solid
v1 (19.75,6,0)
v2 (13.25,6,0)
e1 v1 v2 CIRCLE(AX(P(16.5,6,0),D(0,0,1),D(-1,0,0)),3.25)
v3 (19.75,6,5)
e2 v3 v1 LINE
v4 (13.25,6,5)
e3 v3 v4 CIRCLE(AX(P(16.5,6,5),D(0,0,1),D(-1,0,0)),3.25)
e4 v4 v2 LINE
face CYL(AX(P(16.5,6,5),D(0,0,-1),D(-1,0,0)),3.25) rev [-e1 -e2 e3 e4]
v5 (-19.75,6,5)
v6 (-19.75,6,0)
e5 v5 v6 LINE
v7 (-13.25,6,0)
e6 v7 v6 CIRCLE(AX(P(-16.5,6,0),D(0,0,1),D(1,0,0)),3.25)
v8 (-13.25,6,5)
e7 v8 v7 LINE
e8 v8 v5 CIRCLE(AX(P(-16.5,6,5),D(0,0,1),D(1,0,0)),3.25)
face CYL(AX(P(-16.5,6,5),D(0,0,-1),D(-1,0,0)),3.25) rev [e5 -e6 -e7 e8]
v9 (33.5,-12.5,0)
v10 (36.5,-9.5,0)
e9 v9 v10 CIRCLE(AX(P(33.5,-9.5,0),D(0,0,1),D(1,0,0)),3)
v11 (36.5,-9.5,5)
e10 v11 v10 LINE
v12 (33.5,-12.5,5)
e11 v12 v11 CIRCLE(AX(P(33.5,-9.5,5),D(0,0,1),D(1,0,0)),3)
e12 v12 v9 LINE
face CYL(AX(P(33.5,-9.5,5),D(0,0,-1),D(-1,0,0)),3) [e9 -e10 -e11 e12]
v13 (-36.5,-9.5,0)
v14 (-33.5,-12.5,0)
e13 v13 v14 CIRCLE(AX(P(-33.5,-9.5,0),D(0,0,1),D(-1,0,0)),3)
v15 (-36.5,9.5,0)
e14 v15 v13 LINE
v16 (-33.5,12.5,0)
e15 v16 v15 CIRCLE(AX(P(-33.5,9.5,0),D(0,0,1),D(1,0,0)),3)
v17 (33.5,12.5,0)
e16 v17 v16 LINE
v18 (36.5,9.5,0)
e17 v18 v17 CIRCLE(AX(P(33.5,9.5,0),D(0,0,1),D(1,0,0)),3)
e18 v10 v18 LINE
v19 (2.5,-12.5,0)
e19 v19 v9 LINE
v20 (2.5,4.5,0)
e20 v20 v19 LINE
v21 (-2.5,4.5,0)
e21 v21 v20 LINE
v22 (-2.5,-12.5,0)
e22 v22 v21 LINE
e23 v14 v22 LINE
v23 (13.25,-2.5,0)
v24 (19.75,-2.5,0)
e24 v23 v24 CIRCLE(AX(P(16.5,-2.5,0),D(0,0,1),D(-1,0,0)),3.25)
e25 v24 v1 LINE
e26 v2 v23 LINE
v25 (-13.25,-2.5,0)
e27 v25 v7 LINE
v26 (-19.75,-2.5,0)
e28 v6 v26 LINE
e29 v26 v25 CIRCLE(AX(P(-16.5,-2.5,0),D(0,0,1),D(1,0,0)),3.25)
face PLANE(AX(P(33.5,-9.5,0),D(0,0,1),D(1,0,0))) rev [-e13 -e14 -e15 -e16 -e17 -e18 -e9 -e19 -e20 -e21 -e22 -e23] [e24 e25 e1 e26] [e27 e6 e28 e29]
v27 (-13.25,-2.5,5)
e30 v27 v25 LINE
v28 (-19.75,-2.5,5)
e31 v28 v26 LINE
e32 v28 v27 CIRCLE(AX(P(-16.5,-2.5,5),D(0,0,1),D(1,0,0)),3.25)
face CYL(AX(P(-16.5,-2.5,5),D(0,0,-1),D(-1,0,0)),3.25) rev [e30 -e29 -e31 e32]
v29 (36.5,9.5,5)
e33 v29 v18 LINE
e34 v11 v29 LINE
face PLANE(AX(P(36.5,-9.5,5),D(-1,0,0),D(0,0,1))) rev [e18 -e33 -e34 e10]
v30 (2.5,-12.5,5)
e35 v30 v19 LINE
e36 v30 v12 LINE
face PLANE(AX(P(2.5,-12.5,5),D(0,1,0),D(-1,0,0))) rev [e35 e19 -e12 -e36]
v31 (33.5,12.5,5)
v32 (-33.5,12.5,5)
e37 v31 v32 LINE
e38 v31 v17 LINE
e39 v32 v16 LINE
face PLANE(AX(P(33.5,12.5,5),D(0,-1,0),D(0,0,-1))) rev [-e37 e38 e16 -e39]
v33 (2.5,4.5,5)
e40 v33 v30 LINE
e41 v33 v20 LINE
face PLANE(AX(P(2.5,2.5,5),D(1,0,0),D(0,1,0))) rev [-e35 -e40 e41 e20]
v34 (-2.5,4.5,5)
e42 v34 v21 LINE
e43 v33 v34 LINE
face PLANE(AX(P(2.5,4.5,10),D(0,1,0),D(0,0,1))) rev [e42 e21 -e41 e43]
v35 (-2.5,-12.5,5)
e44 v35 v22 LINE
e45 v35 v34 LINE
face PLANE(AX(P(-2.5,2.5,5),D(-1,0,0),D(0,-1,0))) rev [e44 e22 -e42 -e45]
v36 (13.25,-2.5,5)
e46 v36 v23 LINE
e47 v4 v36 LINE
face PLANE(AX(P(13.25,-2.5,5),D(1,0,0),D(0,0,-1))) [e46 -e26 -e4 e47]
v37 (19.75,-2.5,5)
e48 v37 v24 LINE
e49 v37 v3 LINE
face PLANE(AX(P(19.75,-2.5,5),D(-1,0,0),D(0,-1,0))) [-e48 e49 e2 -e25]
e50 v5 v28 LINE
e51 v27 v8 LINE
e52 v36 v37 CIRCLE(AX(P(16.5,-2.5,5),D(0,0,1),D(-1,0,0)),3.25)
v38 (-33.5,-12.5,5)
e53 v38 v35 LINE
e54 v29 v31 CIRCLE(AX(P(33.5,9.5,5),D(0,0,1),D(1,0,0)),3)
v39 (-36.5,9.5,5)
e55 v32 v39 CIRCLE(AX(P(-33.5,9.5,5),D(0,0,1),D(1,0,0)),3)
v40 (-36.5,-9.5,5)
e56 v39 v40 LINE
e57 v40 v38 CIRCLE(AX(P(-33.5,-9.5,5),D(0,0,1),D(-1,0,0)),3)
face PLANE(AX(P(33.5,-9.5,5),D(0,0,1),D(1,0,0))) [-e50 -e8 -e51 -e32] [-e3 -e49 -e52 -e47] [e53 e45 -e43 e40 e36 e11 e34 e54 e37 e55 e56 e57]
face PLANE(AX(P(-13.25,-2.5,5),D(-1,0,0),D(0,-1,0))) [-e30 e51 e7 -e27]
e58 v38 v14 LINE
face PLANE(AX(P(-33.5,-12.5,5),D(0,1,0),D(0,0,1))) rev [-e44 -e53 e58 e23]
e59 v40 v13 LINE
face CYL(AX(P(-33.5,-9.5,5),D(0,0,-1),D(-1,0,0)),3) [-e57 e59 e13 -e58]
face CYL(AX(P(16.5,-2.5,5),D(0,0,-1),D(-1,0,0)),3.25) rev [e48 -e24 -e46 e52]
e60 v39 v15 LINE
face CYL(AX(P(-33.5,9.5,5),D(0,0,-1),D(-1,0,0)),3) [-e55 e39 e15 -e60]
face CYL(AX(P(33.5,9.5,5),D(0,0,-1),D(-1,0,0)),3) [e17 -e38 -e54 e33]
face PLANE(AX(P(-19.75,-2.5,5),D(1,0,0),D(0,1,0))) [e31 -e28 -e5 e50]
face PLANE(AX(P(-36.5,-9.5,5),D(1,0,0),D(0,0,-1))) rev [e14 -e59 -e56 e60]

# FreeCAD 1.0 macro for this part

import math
import FreeCAD as App
import Part
import Sketcher
Q = App.Units.Quantity


def add_polygon(sketch, points):
    """Adds a closed chain of lines whose ends are joined by coincident constraints."""
    first, n = sketch.GeometryCount, len(points)
    for a, b in zip(points, points[1:] + points[:1]):
        sketch.addGeometry(Part.LineSegment(App.Vector(*a, 0), App.Vector(*b, 0)), False)
    for i in range(n):
        sketch.addConstraint(Sketcher.Constraint("Coincident", first + i, 2, first + (i + 1) % n, 1))

doc = App.newDocument("Part")
params = doc.addObject("Spreadsheet::Sheet", "Params")
for row, (alias, value) in enumerate([
    ("sketch1_radius", "3 mm"),
    ("sketch1_width", "67 mm"),
    ("sketch1_width2", "31 mm"),
    ("sketch1_height", "19 mm"),
    ("sketch1_height2", "15 mm"),
    ("pad1_length", "5 mm"),
    ("sketch2_width", "5 mm"),
    ("sketch2_height", "2 mm"),
    ("pocket1_length", "10 mm"),
], start=1):
    params.set(f"A{row}", alias)
    params.set(f"B{row}", "=" + value)
    params.setAlias(f"B{row}", alias)

body = doc.addObject("PartDesign::Body", "Body")

# Sketch on XY plane
sketch1 = body.newObject("Sketcher::SketchObject", "Sketch")
sketch1.AttachmentSupport = (doc.getObject("XY_Plane"), [""])
sketch1.MapMode = "FlatFace"
sketch1.addGeometry([
    Part.LineSegment(App.Vector(36.5, -9.5, 0), App.Vector(36.5, 9.5, 0)),  # 0
    Part.ArcOfCircle(Part.Circle(App.Vector(33.5, 9.5, 0), App.Vector(0, 0, 1), 3), math.radians(0), math.radians(90)),  # 1
    Part.LineSegment(App.Vector(33.5, 12.5, 0), App.Vector(-33.5, 12.5, 0)),  # 2
    Part.ArcOfCircle(Part.Circle(App.Vector(-33.5, 9.5, 0), App.Vector(0, 0, 1), 3), math.radians(90), math.radians(180)),  # 3
    Part.LineSegment(App.Vector(-36.5, 9.5, 0), App.Vector(-36.5, -9.5, 0)),  # 4
    Part.ArcOfCircle(Part.Circle(App.Vector(-33.5, -9.5, 0), App.Vector(0, 0, 1), 3), math.radians(180), math.radians(270)),  # 5
    Part.LineSegment(App.Vector(-33.5, -12.5, 0), App.Vector(-2.5, -12.5, 0)),  # 6
    Part.LineSegment(App.Vector(-2.5, -12.5, 0), App.Vector(-2.5, 2.5, 0)),  # 7
    Part.LineSegment(App.Vector(-2.5, 2.5, 0), App.Vector(2.5, 2.5, 0)),  # 8
    Part.LineSegment(App.Vector(2.5, 2.5, 0), App.Vector(2.5, -12.5, 0)),  # 9
    Part.LineSegment(App.Vector(2.5, -12.5, 0), App.Vector(33.5, -12.5, 0)),  # 10
    Part.ArcOfCircle(Part.Circle(App.Vector(33.5, -9.5, 0), App.Vector(0, 0, 1), 3), math.radians(-90), math.radians(0)),  # 11
    Part.ArcOfCircle(Part.Circle(App.Vector(-16.5, -2.5, 0), App.Vector(0, 0, 1), 3.2), math.radians(180), math.radians(360)),  # 12
    Part.LineSegment(App.Vector(-19.8, -2.5, 0), App.Vector(-19.8, 6, 0)),  # 13
    Part.ArcOfCircle(Part.Circle(App.Vector(-16.5, 6, 0), App.Vector(0, 0, 1), 3.2), math.radians(0), math.radians(180)),  # 14
    Part.LineSegment(App.Vector(-13.2, 6, 0), App.Vector(-13.2, -2.5, 0)),  # 15
    Part.LineSegment(App.Vector(19.8, 6, 0), App.Vector(19.8, -2.5, 0)),  # 16
    Part.ArcOfCircle(Part.Circle(App.Vector(16.5, -2.5, 0), App.Vector(0, 0, 1), 3.2), math.radians(180), math.radians(360)),  # 17
    Part.LineSegment(App.Vector(13.2, -2.5, 0), App.Vector(13.2, 6, 0)),  # 18
    Part.ArcOfCircle(Part.Circle(App.Vector(16.5, 6, 0), App.Vector(0, 0, 1), 3.2), math.radians(0), math.radians(180)),  # 19
], False)
sketch1.addConstraint([
    Sketcher.Constraint("Tangent", 0, 2, 1, 1),
    Sketcher.Constraint("Tangent", 1, 2, 2, 1),
    Sketcher.Constraint("Tangent", 2, 2, 3, 1),
    Sketcher.Constraint("Tangent", 3, 2, 4, 1),
    Sketcher.Constraint("Tangent", 4, 2, 5, 1),
    Sketcher.Constraint("Tangent", 5, 2, 6, 1),
    Sketcher.Constraint("Coincident", 6, 2, 7, 1),
    Sketcher.Constraint("Coincident", 7, 2, 8, 1),
    Sketcher.Constraint("Coincident", 8, 2, 9, 1),
    Sketcher.Constraint("Coincident", 9, 2, 10, 1),
    Sketcher.Constraint("Tangent", 10, 2, 11, 1),
    Sketcher.Constraint("Tangent", 11, 2, 0, 1),
    Sketcher.Constraint("Tangent", 12, 1, 13, 1),
    Sketcher.Constraint("Tangent", 13, 2, 14, 2),
    Sketcher.Constraint("Tangent", 14, 1, 15, 1),
    Sketcher.Constraint("Tangent", 15, 2, 12, 2),
    Sketcher.Constraint("Tangent", 16, 2, 17, 2),
    Sketcher.Constraint("Tangent", 17, 1, 18, 1),
    Sketcher.Constraint("Tangent", 18, 2, 19, 2),
    Sketcher.Constraint("Tangent", 19, 1, 16, 1),
    Sketcher.Constraint("Vertical", 0),
    Sketcher.Constraint("Horizontal", 2),
    Sketcher.Constraint("Vertical", 4),
    Sketcher.Constraint("Horizontal", 6),
    Sketcher.Constraint("Vertical", 7),
    Sketcher.Constraint("Horizontal", 8),
    Sketcher.Constraint("Vertical", 9),
    Sketcher.Constraint("Horizontal", 10),
    Sketcher.Constraint("Vertical", 13),
    Sketcher.Constraint("Vertical", 15),
    Sketcher.Constraint("Vertical", 16),
    Sketcher.Constraint("Vertical", 18),
    Sketcher.Constraint("Equal", 1, 3),
    Sketcher.Constraint("Equal", 3, 5),
    Sketcher.Constraint("Equal", 5, 11),
    Sketcher.Constraint("Equal", 14, 17),
    Sketcher.Constraint("Symmetric", 1, 3, 5, 3, -1, 1),
    Sketcher.Constraint("Symmetric", 12, 3, 17, 3, -2),
    Sketcher.Constraint("Symmetric", 6, 2, 9, 2, -2),
    Sketcher.Constraint("Horizontal", 14, 3, 19, 3),
    Sketcher.Constraint("Radius", 1, Q("3 mm")),
    Sketcher.Constraint("DistanceX", 2, 2, 2, 1, Q("67 mm")),
    Sketcher.Constraint("DistanceX", 6, 1, 6, 2, Q("31 mm")),
    Sketcher.Constraint("DistanceY", 0, 1, 0, 2, Q("19 mm")),
    Sketcher.Constraint("DistanceY", 7, 1, 7, 2, Q("15 mm")),
    Sketcher.Constraint("Radius", 12, Q("3.25 mm")),
    Sketcher.Constraint("DistanceY", 13, 1, 13, 2, Q("8.5 mm")),
    Sketcher.Constraint("DistanceY", -1, 1, 14, 3, Q("6 mm")),
    Sketcher.Constraint("DistanceX", 5, 3, 12, 3, Q("17 mm")),
])
sketch1.setExpression("Constraints[40]", "Params.sketch1_radius")
sketch1.setExpression("Constraints[41]", "Params.sketch1_width")
sketch1.setExpression("Constraints[42]", "Params.sketch1_width2")
sketch1.setExpression("Constraints[43]", "Params.sketch1_height")
sketch1.setExpression("Constraints[44]", "Params.sketch1_height2")
pad1 = body.newObject("PartDesign::Pad", "Pad")
pad1.Profile = sketch1
pad1.setExpression("Length", "Params.pad1_length")

# Sketch on XY plane
sketch2 = body.newObject("Sketcher::SketchObject", "Sketch001")
sketch2.AttachmentSupport = (doc.getObject("XY_Plane"), [""])
sketch2.MapMode = "FlatFace"
add_polygon(sketch2, [(2.5, 4.5), (2.5, 2.5), (-2.5, 2.5), (-2.5, 4.5)])  # lines 0-3
sketch2.addConstraint([
    Sketcher.Constraint("Vertical", 0),
    Sketcher.Constraint("Horizontal", 1),
    Sketcher.Constraint("Vertical", 2),
    Sketcher.Constraint("Horizontal", 3),
    Sketcher.Constraint("DistanceX", 1, 2, 1, 1, Q("5 mm")),
    Sketcher.Constraint("DistanceY", 0, 2, 0, 1, Q("2 mm")),
    Sketcher.Constraint("DistanceX", -1, 1, 0, 2, Q("2.5 mm")),
    Sketcher.Constraint("DistanceY", -1, 1, 0, 2, Q("2.5 mm")),
])
sketch2.setExpression("Constraints[8]", "Params.sketch2_width")
sketch2.setExpression("Constraints[9]", "Params.sketch2_height")
pocket1 = body.newObject("PartDesign::Pocket", "Pocket")
pocket1.Profile = sketch2
pocket1.setExpression("Length", "Params.pocket1_length")
pocket1.Reversed = True

doc.recompute()
